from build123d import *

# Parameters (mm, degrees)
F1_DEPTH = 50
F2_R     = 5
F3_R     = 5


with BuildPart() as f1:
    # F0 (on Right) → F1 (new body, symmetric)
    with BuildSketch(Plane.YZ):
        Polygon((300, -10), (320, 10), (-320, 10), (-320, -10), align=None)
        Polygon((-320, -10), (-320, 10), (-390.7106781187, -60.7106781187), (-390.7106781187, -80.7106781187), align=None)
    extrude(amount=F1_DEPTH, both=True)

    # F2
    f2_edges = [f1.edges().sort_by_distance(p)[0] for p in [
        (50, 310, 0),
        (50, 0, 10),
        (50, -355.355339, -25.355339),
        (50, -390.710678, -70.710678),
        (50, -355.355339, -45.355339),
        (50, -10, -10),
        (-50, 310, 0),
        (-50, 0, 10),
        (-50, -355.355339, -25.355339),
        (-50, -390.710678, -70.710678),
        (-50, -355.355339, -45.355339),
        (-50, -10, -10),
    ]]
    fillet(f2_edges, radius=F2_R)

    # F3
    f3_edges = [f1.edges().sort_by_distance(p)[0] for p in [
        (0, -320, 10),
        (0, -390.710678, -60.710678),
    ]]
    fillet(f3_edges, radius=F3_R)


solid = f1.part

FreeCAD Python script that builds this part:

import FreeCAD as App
import Part
import Sketcher
from FreeCAD import Vector
Q = App.Units.Quantity


def edges_at(feature, points):
    """Names of the edges that pass closest to the given points."""
    edges = feature.Shape.Edges
    near = lambda p: min(range(len(edges)), key=lambda i: edges[i].distToShape(Part.Vertex(*p))[0])
    return sorted({f"Edge{near(p) + 1}" for p in points})

doc = App.newDocument("Part")
body = doc.addObject("PartDesign::Body", "Body")

sketch1 = body.newObject("Sketcher::SketchObject", "Sketch")
sketch1.AttachmentSupport = (doc.getObject("YZ_Plane"), [""])
sketch1.MapMode = "FlatFace"
sketch1.addGeometry(Part.LineSegment(Vector(300, -10, 0), Vector(320, 10, 0)), False)
sketch1.addGeometry(Part.LineSegment(Vector(320, 10, 0), Vector(-320, 10, 0)), False)
sketch1.addGeometry(Part.LineSegment(Vector(-320, 10, 0), Vector(-391, -61, 0)), False)
sketch1.addGeometry(Part.LineSegment(Vector(-391, -61, 0), Vector(-391, -81, 0)), False)
sketch1.addGeometry(Part.LineSegment(Vector(-391, -81, 0), Vector(-320, -10, 0)), False)
sketch1.addGeometry(Part.LineSegment(Vector(-320, -10, 0), Vector(300, -10, 0)), False)
sketch1.addConstraint(Sketcher.Constraint("Coincident", 0, 2, 1, 1))
sketch1.addConstraint(Sketcher.Constraint("Coincident", 1, 2, 2, 1))
sketch1.addConstraint(Sketcher.Constraint("Coincident", 2, 2, 3, 1))
sketch1.addConstraint(Sketcher.Constraint("Coincident", 3, 2, 4, 1))
sketch1.addConstraint(Sketcher.Constraint("Coincident", 4, 2, 5, 1))
sketch1.addConstraint(Sketcher.Constraint("Coincident", 5, 2, 0, 1))
sketch1.addConstraint(Sketcher.Constraint("Horizontal", 1))
sketch1.addConstraint(Sketcher.Constraint("Vertical", 3))
sketch1.addConstraint(Sketcher.Constraint("Horizontal", 5))
sketch1.addConstraint(Sketcher.Constraint("Symmetric", 0, 2, 4, 2, -1, 1))
sketch1.addConstraint(Sketcher.Constraint("Parallel", 0, 2))
sketch1.addConstraint(Sketcher.Constraint("Parallel", 2, 4))
sketch1.addConstraint(Sketcher.Constraint("Vertical", 1, 2, 4, 2))
sketch1.addConstraint(Sketcher.Constraint("DistanceX", 1, 2, 1, 1, Q("640 mm")))
sketch1.addConstraint(Sketcher.Constraint("DistanceX", 5, 1, 5, 2, Q("620 mm")))
sketch1.addConstraint(Sketcher.Constraint("DistanceY", 3, 2, 3, 1, Q("20 mm")))
sketch1.addConstraint(Sketcher.Constraint("Distance", 2, Q("100 mm")))
pad1 = body.newObject("PartDesign::Pad", "Pad")
pad1.Profile = sketch1
pad1.Length = 100
pad1.Midplane = True
doc.recompute()

fillet = body.newObject("PartDesign::Fillet", "Fillet")
fillet.Base = (pad1, edges_at(pad1, [
    (50, 310, 0),
    (50, 0, 10),
    (50, -355.355, -25.355),
    (50, -390.711, -70.711),
    (50, -355.355, -45.355),
    (50, -10, -10),
    (-50, 310, 0),
    (-50, 0, 10),
    (-50, -355.355, -25.355),
    (-50, -390.711, -70.711),
    (-50, -355.355, -45.355),
    (-50, -10, -10),
]))
fillet.Radius = 5
doc.recompute()

fillet2 = body.newObject("PartDesign::Fillet", "Fillet001")
fillet2.Base = (fillet, edges_at(fillet, [(0, -320, 10), (0, -390.711, -60.711)]))
fillet2.Radius = 5

doc.recompute()
